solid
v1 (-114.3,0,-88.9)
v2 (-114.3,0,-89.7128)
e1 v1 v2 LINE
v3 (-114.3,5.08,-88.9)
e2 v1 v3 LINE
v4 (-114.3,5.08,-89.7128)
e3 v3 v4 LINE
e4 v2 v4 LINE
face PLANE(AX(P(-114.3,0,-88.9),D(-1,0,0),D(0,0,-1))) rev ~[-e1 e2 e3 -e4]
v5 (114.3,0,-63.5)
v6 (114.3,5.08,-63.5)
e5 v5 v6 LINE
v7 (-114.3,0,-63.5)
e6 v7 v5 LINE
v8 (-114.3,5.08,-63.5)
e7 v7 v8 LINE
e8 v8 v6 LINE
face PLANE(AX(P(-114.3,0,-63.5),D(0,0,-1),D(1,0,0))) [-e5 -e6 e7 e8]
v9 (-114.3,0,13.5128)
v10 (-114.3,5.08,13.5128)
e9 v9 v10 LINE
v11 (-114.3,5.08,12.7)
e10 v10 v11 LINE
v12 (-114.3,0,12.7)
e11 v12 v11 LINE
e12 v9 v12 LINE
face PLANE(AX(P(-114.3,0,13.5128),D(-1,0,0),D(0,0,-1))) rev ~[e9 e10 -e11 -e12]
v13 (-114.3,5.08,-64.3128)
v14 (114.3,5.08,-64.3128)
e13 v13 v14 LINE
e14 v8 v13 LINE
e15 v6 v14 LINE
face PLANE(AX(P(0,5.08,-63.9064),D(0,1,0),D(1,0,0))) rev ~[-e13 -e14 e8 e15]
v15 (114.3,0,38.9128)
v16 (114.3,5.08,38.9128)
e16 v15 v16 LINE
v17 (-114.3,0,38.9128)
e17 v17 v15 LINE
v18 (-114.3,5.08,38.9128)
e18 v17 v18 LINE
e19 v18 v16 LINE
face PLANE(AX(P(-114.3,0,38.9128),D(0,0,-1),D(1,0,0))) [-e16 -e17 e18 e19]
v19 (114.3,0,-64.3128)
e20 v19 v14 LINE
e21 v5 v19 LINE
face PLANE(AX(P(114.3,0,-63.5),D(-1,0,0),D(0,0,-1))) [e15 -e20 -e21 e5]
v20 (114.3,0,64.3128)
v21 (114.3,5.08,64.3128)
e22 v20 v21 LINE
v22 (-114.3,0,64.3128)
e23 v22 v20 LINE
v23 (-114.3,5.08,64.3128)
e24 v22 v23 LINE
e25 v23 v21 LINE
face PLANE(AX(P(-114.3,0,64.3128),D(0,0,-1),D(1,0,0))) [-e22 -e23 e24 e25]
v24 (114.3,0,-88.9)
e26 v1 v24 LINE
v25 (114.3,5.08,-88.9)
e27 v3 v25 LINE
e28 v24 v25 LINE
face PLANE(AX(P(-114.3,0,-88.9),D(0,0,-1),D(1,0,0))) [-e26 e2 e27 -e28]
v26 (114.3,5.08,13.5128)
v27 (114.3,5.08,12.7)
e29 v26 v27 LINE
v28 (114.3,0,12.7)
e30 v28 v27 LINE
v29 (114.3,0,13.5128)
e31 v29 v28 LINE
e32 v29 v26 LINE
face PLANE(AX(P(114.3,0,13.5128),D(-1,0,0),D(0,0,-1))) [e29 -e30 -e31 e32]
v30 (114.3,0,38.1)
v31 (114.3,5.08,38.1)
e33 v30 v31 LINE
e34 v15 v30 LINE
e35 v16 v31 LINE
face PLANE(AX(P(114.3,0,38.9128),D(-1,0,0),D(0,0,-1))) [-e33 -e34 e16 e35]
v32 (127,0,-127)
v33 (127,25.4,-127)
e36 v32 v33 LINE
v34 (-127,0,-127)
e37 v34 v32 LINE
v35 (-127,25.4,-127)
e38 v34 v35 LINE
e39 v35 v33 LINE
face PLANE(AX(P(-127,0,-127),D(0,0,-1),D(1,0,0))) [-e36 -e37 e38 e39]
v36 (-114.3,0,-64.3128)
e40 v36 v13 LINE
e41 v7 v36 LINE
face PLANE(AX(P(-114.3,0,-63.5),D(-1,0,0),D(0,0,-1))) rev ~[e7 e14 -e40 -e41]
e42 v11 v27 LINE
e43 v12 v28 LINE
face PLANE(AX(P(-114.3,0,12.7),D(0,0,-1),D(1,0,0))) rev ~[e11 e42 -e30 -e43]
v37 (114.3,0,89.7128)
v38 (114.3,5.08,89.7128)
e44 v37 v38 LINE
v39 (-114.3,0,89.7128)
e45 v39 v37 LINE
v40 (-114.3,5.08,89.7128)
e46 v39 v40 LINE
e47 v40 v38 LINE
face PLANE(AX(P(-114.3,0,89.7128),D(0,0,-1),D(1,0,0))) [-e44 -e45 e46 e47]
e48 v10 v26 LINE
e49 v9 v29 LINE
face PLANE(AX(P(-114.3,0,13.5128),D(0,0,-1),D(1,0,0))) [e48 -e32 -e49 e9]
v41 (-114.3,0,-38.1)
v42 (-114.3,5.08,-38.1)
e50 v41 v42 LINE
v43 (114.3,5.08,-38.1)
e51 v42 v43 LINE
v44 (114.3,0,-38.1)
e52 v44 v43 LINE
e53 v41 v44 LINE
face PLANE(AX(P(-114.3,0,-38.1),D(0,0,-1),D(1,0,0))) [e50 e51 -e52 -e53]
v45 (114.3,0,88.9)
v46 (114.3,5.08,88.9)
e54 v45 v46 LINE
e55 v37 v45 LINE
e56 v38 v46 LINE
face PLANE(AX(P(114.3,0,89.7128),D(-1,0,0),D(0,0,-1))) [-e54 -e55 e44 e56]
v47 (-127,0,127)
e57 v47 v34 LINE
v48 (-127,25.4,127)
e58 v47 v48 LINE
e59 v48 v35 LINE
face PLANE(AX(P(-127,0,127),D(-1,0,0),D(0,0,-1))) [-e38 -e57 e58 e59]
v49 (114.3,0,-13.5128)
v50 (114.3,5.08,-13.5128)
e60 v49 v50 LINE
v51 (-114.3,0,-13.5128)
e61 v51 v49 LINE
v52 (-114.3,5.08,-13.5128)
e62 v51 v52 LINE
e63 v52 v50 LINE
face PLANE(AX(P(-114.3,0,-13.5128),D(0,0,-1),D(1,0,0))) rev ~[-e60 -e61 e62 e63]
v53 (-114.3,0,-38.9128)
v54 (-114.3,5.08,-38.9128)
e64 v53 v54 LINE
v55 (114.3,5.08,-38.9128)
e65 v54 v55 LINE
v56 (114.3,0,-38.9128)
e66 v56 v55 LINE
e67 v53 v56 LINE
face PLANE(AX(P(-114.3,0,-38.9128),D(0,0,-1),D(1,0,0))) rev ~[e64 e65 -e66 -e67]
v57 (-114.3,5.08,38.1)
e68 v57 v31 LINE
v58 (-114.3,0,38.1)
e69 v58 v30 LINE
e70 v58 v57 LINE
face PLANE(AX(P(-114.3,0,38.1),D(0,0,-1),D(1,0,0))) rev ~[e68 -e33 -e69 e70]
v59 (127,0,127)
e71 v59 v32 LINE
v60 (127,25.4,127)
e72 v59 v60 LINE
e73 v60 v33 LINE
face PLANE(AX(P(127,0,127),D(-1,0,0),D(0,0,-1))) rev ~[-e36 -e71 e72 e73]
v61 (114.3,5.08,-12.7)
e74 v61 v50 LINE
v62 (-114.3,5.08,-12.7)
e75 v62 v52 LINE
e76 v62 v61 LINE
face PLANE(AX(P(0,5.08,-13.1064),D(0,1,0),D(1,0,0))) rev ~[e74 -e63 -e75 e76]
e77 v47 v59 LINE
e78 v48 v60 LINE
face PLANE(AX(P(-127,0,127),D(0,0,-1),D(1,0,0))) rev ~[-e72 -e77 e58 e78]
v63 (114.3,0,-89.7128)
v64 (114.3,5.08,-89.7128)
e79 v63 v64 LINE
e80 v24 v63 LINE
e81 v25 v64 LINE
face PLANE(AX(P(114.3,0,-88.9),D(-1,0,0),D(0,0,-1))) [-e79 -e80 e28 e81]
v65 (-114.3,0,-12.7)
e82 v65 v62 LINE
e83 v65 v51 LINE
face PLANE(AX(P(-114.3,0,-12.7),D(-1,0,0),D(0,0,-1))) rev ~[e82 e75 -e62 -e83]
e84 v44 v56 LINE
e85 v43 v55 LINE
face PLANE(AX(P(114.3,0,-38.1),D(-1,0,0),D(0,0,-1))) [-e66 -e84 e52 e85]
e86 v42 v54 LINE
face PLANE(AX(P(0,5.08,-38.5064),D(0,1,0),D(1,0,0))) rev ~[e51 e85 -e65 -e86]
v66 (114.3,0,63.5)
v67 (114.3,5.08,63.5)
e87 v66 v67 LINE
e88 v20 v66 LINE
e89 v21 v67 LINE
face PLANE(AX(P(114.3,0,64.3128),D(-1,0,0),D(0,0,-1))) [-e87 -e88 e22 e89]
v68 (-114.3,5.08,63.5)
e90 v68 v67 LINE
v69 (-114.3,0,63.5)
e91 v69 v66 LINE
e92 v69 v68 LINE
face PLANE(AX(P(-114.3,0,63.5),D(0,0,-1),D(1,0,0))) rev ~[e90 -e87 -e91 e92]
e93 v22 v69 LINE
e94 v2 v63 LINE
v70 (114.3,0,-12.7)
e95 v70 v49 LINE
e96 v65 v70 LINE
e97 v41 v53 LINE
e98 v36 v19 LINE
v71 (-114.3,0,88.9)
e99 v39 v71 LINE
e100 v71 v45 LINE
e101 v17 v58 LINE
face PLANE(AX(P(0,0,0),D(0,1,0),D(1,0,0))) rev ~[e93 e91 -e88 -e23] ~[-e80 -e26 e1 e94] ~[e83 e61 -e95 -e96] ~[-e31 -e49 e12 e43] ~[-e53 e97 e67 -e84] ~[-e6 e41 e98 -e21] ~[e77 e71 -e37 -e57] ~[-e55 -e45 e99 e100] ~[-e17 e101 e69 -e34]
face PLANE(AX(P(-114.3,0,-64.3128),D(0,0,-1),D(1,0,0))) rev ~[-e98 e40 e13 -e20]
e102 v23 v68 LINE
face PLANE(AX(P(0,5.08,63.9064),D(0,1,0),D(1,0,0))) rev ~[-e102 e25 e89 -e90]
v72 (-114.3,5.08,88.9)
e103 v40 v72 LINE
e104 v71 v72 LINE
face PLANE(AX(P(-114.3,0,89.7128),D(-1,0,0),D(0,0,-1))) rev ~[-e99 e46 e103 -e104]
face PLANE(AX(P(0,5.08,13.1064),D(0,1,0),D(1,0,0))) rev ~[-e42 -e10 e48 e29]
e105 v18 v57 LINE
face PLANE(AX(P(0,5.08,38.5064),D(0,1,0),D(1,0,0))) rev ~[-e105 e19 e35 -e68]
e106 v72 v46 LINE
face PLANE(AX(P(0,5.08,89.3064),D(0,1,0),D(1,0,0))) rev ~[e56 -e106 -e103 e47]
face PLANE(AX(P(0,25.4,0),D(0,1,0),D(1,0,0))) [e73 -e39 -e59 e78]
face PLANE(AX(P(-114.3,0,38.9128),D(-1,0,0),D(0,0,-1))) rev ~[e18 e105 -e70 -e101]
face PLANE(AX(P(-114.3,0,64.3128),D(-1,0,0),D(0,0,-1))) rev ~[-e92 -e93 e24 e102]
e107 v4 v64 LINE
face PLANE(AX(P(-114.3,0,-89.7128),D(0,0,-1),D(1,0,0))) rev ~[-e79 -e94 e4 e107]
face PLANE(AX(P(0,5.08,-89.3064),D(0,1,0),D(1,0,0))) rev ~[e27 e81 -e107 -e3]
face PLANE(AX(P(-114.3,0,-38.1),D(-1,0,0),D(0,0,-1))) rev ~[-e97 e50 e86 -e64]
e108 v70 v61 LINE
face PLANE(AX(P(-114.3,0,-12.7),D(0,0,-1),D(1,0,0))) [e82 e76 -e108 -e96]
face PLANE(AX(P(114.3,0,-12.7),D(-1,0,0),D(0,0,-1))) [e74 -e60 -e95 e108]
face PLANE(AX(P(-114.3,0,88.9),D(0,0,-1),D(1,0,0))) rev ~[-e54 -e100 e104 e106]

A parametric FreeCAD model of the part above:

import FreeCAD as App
import Part
import Sketcher

V = App.Vector
Q = App.Units.Quantity

doc = App.newDocument("Part")
body = doc.addObject("PartDesign::Body", "Body")

# Sketch on XZ plane
sketch1 = body.newObject("Sketcher::SketchObject", "Sketch")
sketch1.AttachmentSupport = (doc.getObject("XZ_Plane"), [""])
sketch1.MapMode = "FlatFace"
sketch1.addGeometry([
    Part.LineSegment(V(-127, -127, 0), V(-127, 127, 0)),
    Part.LineSegment(V(-127, 127, 0), V(127, 127, 0)),
    Part.LineSegment(V(127, 127, 0), V(127, -127, 0)),
    Part.LineSegment(V(127, -127, 0), V(-127, -127, 0)),
], False)
sketch1.addConstraint([
    Sketcher.Constraint("Coincident", 0, 2, 1, 1),
    Sketcher.Constraint("Coincident", 1, 2, 2, 1),
    Sketcher.Constraint("Coincident", 2, 2, 3, 1),
    Sketcher.Constraint("Coincident", 3, 2, 0, 1),
    Sketcher.Constraint("Vertical", 0),
    Sketcher.Constraint("Horizontal", 1),
    Sketcher.Constraint("Vertical", 2),
    Sketcher.Constraint("Horizontal", 3),
    Sketcher.Constraint("Symmetric", 0, 2, 2, 2, -1, 1),
    Sketcher.Constraint("Equal", 3, 0),
    Sketcher.Constraint("DistanceX", 1, 1, 1, 2, Q("10 in")),
])
pad1 = body.newObject("PartDesign::Pad", "Pad")
pad1.Profile = sketch1
pad1.Length = Q("1 in")
pad1.Reversed = True

# Sketch on XZ plane
sketch2 = body.newObject("Sketcher::SketchObject", "Sketch001")
sketch2.AttachmentSupport = (doc.getObject("XZ_Plane"), [""])
sketch2.MapMode = "FlatFace"
sketch2.addGeometry([
    Part.LineSegment(V(-114.3, -89.7, 0), V(-114.3, -88.9, 0)),  # 0
    Part.LineSegment(V(-114.3, -88.9, 0), V(114.3, -88.9, 0)),  # 1
    Part.LineSegment(V(114.3, -88.9, 0), V(114.3, -89.7, 0)),  # 2
    Part.LineSegment(V(114.3, -89.7, 0), V(-114.3, -89.7, 0)),  # 3
    Part.LineSegment(V(-114.3, -64.3, 0), V(-114.3, -63.5, 0)),  # 4
    Part.LineSegment(V(-114.3, -63.5, 0), V(114.3, -63.5, 0)),  # 5
    Part.LineSegment(V(114.3, -63.5, 0), V(114.3, -64.3, 0)),  # 6
    Part.LineSegment(V(114.3, -64.3, 0), V(-114.3, -64.3, 0)),  # 7
    Part.LineSegment(V(-114.3, -38.9, 0), V(-114.3, -38.1, 0)),  # 8
    Part.LineSegment(V(-114.3, -38.1, 0), V(114.3, -38.1, 0)),  # 9
    Part.LineSegment(V(114.3, -38.1, 0), V(114.3, -38.9, 0)),  # 10
    Part.LineSegment(V(114.3, -38.9, 0), V(-114.3, -38.9, 0)),  # 11
    Part.LineSegment(V(-114.3, -13.5, 0), V(-114.3, -12.7, 0)),  # 12
    Part.LineSegment(V(-114.3, -12.7, 0), V(114.3, -12.7, 0)),  # 13
    Part.LineSegment(V(114.3, -12.7, 0), V(114.3, -13.5, 0)),  # 14
    Part.LineSegment(V(114.3, -13.5, 0), V(-114.3, -13.5, 0)),  # 15
    Part.LineSegment(V(-114.3, 12.7, 0), V(-114.3, 13.5, 0)),  # 16
    Part.LineSegment(V(-114.3, 13.5, 0), V(114.3, 13.5, 0)),  # 17
    Part.LineSegment(V(114.3, 13.5, 0), V(114.3, 12.7, 0)),  # 18
    Part.LineSegment(V(114.3, 12.7, 0), V(-114.3, 12.7, 0)),  # 19
    Part.LineSegment(V(-114.3, 38.1, 0), V(-114.3, 38.9, 0)),  # 20
    Part.LineSegment(V(-114.3, 38.9, 0), V(114.3, 38.9, 0)),  # 21
    Part.LineSegment(V(114.3, 38.9, 0), V(114.3, 38.1, 0)),  # 22
    Part.LineSegment(V(114.3, 38.1, 0), V(-114.3, 38.1, 0)),  # 23
    Part.LineSegment(V(-114.3, 63.5, 0), V(-114.3, 64.3, 0)),  # 24
    Part.LineSegment(V(-114.3, 64.3, 0), V(114.3, 64.3, 0)),  # 25
    Part.LineSegment(V(114.3, 64.3, 0), V(114.3, 63.5, 0)),  # 26
    Part.LineSegment(V(114.3, 63.5, 0), V(-114.3, 63.5, 0)),  # 27
    Part.LineSegment(V(-114.3, 88.9, 0), V(-114.3, 89.7, 0)),  # 28
    Part.LineSegment(V(-114.3, 89.7, 0), V(114.3, 89.7, 0)),  # 29
    Part.LineSegment(V(114.3, 89.7, 0), V(114.3, 88.9, 0)),  # 30
    Part.LineSegment(V(114.3, 88.9, 0), V(-114.3, 88.9, 0)),  # 31
], False)
sketch2.addConstraint([
    Sketcher.Constraint("Coincident", 0, 2, 1, 1),
    Sketcher.Constraint("Coincident", 1, 2, 2, 1),
    Sketcher.Constraint("Coincident", 2, 2, 3, 1),
    Sketcher.Constraint("Coincident", 3, 2, 0, 1),
    Sketcher.Constraint("Coincident", 4, 2, 5, 1),
    Sketcher.Constraint("Coincident", 5, 2, 6, 1),
    Sketcher.Constraint("Coincident", 6, 2, 7, 1),
    Sketcher.Constraint("Coincident", 7, 2, 4, 1),
    Sketcher.Constraint("Coincident", 8, 2, 9, 1),
    Sketcher.Constraint("Coincident", 9, 2, 10, 1),
    Sketcher.Constraint("Coincident", 10, 2, 11, 1),
    Sketcher.Constraint("Coincident", 11, 2, 8, 1),
    Sketcher.Constraint("Coincident", 12, 2, 13, 1),
    Sketcher.Constraint("Coincident", 13, 2, 14, 1),
    Sketcher.Constraint("Coincident", 14, 2, 15, 1),
    Sketcher.Constraint("Coincident", 15, 2, 12, 1),
    Sketcher.Constraint("Coincident", 16, 2, 17, 1),
    Sketcher.Constraint("Coincident", 17, 2, 18, 1),
    Sketcher.Constraint("Coincident", 18, 2, 19, 1),
    Sketcher.Constraint("Coincident", 19, 2, 16, 1),
    Sketcher.Constraint("Coincident", 20, 2, 21, 1),
    Sketcher.Constraint("Coincident", 21, 2, 22, 1),
    Sketcher.Constraint("Coincident", 22, 2, 23, 1),
    Sketcher.Constraint("Coincident", 23, 2, 20, 1),
    Sketcher.Constraint("Coincident", 24, 2, 25, 1),
    Sketcher.Constraint("Coincident", 25, 2, 26, 1),
    Sketcher.Constraint("Coincident", 26, 2, 27, 1),
    Sketcher.Constraint("Coincident", 27, 2, 24, 1),
    Sketcher.Constraint("Coincident", 28, 2, 29, 1),
    Sketcher.Constraint("Coincident", 29, 2, 30, 1),
    Sketcher.Constraint("Coincident", 30, 2, 31, 1),
    Sketcher.Constraint("Coincident", 31, 2, 28, 1),
    Sketcher.Constraint("Vertical", 0),
    Sketcher.Constraint("Horizontal", 1),
    Sketcher.Constraint("Vertical", 2),
    Sketcher.Constraint("Horizontal", 3),
    Sketcher.Constraint("Vertical", 4),
    Sketcher.Constraint("Horizontal", 5),
    Sketcher.Constraint("Vertical", 6),
    Sketcher.Constraint("Horizontal", 7),
    Sketcher.Constraint("Vertical", 8),
    Sketcher.Constraint("Horizontal", 9),
    Sketcher.Constraint("Vertical", 10),
    Sketcher.Constraint("Horizontal", 11),
    Sketcher.Constraint("Vertical", 12),
    Sketcher.Constraint("Horizontal", 13),
    Sketcher.Constraint("Vertical", 14),
    Sketcher.Constraint("Horizontal", 15),
    Sketcher.Constraint("Vertical", 16),
    Sketcher.Constraint("Horizontal", 17),
    Sketcher.Constraint("Vertical", 18),
    Sketcher.Constraint("Horizontal", 19),
    Sketcher.Constraint("Vertical", 20),
    Sketcher.Constraint("Horizontal", 21),
    Sketcher.Constraint("Vertical", 22),
    Sketcher.Constraint("Horizontal", 23),
    Sketcher.Constraint("Vertical", 24),
    Sketcher.Constraint("Horizontal", 25),
    Sketcher.Constraint("Vertical", 26),
    Sketcher.Constraint("Horizontal", 27),
    Sketcher.Constraint("Vertical", 28),
    Sketcher.Constraint("Horizontal", 29),
    Sketcher.Constraint("Vertical", 30),
    Sketcher.Constraint("Horizontal", 31),
    Sketcher.Constraint("Symmetric", 14, 2, 16, 2, -1, 1),
    Sketcher.Constraint("Symmetric", 12, 2, 18, 2, -1, 1),
    Sketcher.Constraint("Symmetric", 10, 2, 20, 2, -1, 1),
    Sketcher.Constraint("Symmetric", 8, 2, 22, 2, -1, 1),
    Sketcher.Constraint("Symmetric", 6, 2, 24, 2, -1, 1),
    Sketcher.Constraint("Symmetric", 4, 2, 26, 2, -1, 1),
    Sketcher.Constraint("Symmetric", 2, 2, 28, 2, -1, 1),
    Sketcher.Constraint("Symmetric", 0, 2, 30, 2, -1, 1),
    Sketcher.Constraint("Vertical", 3, 2, 4, 2),
    Sketcher.Constraint("Vertical", 2, 2, 5, 2),
    Sketcher.Constraint("Vertical", 7, 2, 8, 2),
    Sketcher.Constraint("Vertical", 6, 2, 9, 2),
    Sketcher.Constraint("Vertical", 11, 2, 12, 2),
    Sketcher.Constraint("Vertical", 10, 2, 13, 2),
    Sketcher.Constraint("Vertical", 15, 2, 16, 2),
    Sketcher.Constraint("Equal", 2, 4),
    Sketcher.Constraint("Equal", 6, 8),
    Sketcher.Constraint("Equal", 10, 12),
    Sketcher.Constraint("DistanceX", 1, 1, 1, 2, Q("9 in")),
    Sketcher.Constraint("DistanceY", 0, 2, 4, 2, Q("1 in")),
    Sketcher.Constraint("DistanceY", 4, 2, 8, 2, Q("1 in")),
    Sketcher.Constraint("DistanceY", 8, 2, 12, 2, Q("1 in")),
    Sketcher.Constraint("DistanceY", 13, 2, 18, 2, Q("1 in")),
    Sketcher.Constraint("DistanceY", 0, 1, 0, 2, Q("0.032 in")),
])
pocket1 = body.newObject("PartDesign::Pocket", "Pocket")
pocket1.Profile = sketch2
pocket1.Length = Q("0.2 in")

doc.recompute()
